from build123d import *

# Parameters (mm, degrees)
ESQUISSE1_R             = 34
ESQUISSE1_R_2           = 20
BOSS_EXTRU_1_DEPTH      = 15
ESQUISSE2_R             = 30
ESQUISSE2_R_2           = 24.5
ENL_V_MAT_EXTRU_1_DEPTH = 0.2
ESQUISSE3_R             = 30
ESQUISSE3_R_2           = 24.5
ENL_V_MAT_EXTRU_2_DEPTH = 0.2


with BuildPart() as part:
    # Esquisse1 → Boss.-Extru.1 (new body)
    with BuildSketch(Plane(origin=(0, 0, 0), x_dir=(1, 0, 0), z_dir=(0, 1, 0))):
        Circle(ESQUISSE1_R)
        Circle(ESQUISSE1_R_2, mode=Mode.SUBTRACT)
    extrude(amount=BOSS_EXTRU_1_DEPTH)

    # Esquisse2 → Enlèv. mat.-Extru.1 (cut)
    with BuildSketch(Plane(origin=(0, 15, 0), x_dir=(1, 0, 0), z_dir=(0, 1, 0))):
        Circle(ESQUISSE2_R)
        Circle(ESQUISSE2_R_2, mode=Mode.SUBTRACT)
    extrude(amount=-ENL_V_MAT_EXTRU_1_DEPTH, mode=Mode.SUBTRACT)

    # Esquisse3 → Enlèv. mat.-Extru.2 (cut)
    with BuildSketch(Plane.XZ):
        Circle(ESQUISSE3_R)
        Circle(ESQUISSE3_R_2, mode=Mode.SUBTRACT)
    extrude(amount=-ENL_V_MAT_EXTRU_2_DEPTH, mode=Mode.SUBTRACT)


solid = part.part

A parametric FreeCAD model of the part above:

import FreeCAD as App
import Part
import Sketcher
from FreeCAD import Vector
Q = App.Units.Quantity

doc = App.newDocument("Part")
body = doc.addObject("PartDesign::Body", "Body")

# Sketch on XZ plane
sketch1 = body.newObject("Sketcher::SketchObject", "Sketch")
sketch1.AttachmentSupport = (doc.getObject("XZ_Plane"), [""])
sketch1.MapMode = "FlatFace"
sketch1.addGeometry(Part.Circle(Vector(0, 0, 0), Vector(0, 0, 1), 34), False)
sketch1.addGeometry(Part.Circle(Vector(0, 0, 0), Vector(0, 0, 1), 20), False)
sketch1.addConstraint(Sketcher.Constraint("Coincident", 0, 3, -1, 1))
sketch1.addConstraint(Sketcher.Constraint("Coincident", 1, 3, -1, 1))
sketch1.addConstraint(Sketcher.Constraint("Diameter", 0, Q("68 mm")))
sketch1.addConstraint(Sketcher.Constraint("Diameter", 1, Q("40 mm")))
pad1 = body.newObject("PartDesign::Pad", "Pad")
pad1.Profile = sketch1
pad1.Length = 15
pad1.Reversed = True

# Sketch on XZ plane
sketch2 = body.newObject("Sketcher::SketchObject", "Sketch001")
sketch2.AttachmentSupport = (doc.getObject("XZ_Plane"), [""])
sketch2.MapMode = "FlatFace"
sketch2.AttachmentOffset = App.Placement(Vector(0, 0, -15), App.Rotation())
sketch2.addGeometry(Part.Circle(Vector(0, 0, 0), Vector(0, 0, 1), 30), False)
sketch2.addGeometry(Part.Circle(Vector(0, 0, 0), Vector(0, 0, 1), 24), False)
sketch2.addConstraint(Sketcher.Constraint("Coincident", 0, 3, -1, 1))
sketch2.addConstraint(Sketcher.Constraint("Coincident", 1, 3, -1, 1))
sketch2.addConstraint(Sketcher.Constraint("Diameter", 0, Q("60 mm")))
sketch2.addConstraint(Sketcher.Constraint("Diameter", 1, Q("49 mm")))
pocket1 = body.newObject("PartDesign::Pocket", "Pocket")
pocket1.Profile = sketch2
pocket1.Length = 0.2
pocket1.Reversed = True

# Sketch on XZ plane
sketch3 = body.newObject("Sketcher::SketchObject", "Sketch002")
sketch3.AttachmentSupport = (doc.getObject("XZ_Plane"), [""])
sketch3.MapMode = "FlatFace"
sketch3.addGeometry(Part.Circle(Vector(0, 0, 0), Vector(0, 0, 1), 30), False)
sketch3.addGeometry(Part.Circle(Vector(0, 0, 0), Vector(0, 0, 1), 24), False)
sketch3.addConstraint(Sketcher.Constraint("Coincident", 0, 3, -1, 1))
sketch3.addConstraint(Sketcher.Constraint("Coincident", 1, 3, -1, 1))
sketch3.addConstraint(Sketcher.Constraint("Diameter", 0, Q("60 mm")))
sketch3.addConstraint(Sketcher.Constraint("Diameter", 1, Q("49 mm")))
pocket2 = body.newObject("PartDesign::Pocket", "Pocket001")
pocket2.Profile = sketch3
pocket2.Length = 0.2

doc.recompute()
